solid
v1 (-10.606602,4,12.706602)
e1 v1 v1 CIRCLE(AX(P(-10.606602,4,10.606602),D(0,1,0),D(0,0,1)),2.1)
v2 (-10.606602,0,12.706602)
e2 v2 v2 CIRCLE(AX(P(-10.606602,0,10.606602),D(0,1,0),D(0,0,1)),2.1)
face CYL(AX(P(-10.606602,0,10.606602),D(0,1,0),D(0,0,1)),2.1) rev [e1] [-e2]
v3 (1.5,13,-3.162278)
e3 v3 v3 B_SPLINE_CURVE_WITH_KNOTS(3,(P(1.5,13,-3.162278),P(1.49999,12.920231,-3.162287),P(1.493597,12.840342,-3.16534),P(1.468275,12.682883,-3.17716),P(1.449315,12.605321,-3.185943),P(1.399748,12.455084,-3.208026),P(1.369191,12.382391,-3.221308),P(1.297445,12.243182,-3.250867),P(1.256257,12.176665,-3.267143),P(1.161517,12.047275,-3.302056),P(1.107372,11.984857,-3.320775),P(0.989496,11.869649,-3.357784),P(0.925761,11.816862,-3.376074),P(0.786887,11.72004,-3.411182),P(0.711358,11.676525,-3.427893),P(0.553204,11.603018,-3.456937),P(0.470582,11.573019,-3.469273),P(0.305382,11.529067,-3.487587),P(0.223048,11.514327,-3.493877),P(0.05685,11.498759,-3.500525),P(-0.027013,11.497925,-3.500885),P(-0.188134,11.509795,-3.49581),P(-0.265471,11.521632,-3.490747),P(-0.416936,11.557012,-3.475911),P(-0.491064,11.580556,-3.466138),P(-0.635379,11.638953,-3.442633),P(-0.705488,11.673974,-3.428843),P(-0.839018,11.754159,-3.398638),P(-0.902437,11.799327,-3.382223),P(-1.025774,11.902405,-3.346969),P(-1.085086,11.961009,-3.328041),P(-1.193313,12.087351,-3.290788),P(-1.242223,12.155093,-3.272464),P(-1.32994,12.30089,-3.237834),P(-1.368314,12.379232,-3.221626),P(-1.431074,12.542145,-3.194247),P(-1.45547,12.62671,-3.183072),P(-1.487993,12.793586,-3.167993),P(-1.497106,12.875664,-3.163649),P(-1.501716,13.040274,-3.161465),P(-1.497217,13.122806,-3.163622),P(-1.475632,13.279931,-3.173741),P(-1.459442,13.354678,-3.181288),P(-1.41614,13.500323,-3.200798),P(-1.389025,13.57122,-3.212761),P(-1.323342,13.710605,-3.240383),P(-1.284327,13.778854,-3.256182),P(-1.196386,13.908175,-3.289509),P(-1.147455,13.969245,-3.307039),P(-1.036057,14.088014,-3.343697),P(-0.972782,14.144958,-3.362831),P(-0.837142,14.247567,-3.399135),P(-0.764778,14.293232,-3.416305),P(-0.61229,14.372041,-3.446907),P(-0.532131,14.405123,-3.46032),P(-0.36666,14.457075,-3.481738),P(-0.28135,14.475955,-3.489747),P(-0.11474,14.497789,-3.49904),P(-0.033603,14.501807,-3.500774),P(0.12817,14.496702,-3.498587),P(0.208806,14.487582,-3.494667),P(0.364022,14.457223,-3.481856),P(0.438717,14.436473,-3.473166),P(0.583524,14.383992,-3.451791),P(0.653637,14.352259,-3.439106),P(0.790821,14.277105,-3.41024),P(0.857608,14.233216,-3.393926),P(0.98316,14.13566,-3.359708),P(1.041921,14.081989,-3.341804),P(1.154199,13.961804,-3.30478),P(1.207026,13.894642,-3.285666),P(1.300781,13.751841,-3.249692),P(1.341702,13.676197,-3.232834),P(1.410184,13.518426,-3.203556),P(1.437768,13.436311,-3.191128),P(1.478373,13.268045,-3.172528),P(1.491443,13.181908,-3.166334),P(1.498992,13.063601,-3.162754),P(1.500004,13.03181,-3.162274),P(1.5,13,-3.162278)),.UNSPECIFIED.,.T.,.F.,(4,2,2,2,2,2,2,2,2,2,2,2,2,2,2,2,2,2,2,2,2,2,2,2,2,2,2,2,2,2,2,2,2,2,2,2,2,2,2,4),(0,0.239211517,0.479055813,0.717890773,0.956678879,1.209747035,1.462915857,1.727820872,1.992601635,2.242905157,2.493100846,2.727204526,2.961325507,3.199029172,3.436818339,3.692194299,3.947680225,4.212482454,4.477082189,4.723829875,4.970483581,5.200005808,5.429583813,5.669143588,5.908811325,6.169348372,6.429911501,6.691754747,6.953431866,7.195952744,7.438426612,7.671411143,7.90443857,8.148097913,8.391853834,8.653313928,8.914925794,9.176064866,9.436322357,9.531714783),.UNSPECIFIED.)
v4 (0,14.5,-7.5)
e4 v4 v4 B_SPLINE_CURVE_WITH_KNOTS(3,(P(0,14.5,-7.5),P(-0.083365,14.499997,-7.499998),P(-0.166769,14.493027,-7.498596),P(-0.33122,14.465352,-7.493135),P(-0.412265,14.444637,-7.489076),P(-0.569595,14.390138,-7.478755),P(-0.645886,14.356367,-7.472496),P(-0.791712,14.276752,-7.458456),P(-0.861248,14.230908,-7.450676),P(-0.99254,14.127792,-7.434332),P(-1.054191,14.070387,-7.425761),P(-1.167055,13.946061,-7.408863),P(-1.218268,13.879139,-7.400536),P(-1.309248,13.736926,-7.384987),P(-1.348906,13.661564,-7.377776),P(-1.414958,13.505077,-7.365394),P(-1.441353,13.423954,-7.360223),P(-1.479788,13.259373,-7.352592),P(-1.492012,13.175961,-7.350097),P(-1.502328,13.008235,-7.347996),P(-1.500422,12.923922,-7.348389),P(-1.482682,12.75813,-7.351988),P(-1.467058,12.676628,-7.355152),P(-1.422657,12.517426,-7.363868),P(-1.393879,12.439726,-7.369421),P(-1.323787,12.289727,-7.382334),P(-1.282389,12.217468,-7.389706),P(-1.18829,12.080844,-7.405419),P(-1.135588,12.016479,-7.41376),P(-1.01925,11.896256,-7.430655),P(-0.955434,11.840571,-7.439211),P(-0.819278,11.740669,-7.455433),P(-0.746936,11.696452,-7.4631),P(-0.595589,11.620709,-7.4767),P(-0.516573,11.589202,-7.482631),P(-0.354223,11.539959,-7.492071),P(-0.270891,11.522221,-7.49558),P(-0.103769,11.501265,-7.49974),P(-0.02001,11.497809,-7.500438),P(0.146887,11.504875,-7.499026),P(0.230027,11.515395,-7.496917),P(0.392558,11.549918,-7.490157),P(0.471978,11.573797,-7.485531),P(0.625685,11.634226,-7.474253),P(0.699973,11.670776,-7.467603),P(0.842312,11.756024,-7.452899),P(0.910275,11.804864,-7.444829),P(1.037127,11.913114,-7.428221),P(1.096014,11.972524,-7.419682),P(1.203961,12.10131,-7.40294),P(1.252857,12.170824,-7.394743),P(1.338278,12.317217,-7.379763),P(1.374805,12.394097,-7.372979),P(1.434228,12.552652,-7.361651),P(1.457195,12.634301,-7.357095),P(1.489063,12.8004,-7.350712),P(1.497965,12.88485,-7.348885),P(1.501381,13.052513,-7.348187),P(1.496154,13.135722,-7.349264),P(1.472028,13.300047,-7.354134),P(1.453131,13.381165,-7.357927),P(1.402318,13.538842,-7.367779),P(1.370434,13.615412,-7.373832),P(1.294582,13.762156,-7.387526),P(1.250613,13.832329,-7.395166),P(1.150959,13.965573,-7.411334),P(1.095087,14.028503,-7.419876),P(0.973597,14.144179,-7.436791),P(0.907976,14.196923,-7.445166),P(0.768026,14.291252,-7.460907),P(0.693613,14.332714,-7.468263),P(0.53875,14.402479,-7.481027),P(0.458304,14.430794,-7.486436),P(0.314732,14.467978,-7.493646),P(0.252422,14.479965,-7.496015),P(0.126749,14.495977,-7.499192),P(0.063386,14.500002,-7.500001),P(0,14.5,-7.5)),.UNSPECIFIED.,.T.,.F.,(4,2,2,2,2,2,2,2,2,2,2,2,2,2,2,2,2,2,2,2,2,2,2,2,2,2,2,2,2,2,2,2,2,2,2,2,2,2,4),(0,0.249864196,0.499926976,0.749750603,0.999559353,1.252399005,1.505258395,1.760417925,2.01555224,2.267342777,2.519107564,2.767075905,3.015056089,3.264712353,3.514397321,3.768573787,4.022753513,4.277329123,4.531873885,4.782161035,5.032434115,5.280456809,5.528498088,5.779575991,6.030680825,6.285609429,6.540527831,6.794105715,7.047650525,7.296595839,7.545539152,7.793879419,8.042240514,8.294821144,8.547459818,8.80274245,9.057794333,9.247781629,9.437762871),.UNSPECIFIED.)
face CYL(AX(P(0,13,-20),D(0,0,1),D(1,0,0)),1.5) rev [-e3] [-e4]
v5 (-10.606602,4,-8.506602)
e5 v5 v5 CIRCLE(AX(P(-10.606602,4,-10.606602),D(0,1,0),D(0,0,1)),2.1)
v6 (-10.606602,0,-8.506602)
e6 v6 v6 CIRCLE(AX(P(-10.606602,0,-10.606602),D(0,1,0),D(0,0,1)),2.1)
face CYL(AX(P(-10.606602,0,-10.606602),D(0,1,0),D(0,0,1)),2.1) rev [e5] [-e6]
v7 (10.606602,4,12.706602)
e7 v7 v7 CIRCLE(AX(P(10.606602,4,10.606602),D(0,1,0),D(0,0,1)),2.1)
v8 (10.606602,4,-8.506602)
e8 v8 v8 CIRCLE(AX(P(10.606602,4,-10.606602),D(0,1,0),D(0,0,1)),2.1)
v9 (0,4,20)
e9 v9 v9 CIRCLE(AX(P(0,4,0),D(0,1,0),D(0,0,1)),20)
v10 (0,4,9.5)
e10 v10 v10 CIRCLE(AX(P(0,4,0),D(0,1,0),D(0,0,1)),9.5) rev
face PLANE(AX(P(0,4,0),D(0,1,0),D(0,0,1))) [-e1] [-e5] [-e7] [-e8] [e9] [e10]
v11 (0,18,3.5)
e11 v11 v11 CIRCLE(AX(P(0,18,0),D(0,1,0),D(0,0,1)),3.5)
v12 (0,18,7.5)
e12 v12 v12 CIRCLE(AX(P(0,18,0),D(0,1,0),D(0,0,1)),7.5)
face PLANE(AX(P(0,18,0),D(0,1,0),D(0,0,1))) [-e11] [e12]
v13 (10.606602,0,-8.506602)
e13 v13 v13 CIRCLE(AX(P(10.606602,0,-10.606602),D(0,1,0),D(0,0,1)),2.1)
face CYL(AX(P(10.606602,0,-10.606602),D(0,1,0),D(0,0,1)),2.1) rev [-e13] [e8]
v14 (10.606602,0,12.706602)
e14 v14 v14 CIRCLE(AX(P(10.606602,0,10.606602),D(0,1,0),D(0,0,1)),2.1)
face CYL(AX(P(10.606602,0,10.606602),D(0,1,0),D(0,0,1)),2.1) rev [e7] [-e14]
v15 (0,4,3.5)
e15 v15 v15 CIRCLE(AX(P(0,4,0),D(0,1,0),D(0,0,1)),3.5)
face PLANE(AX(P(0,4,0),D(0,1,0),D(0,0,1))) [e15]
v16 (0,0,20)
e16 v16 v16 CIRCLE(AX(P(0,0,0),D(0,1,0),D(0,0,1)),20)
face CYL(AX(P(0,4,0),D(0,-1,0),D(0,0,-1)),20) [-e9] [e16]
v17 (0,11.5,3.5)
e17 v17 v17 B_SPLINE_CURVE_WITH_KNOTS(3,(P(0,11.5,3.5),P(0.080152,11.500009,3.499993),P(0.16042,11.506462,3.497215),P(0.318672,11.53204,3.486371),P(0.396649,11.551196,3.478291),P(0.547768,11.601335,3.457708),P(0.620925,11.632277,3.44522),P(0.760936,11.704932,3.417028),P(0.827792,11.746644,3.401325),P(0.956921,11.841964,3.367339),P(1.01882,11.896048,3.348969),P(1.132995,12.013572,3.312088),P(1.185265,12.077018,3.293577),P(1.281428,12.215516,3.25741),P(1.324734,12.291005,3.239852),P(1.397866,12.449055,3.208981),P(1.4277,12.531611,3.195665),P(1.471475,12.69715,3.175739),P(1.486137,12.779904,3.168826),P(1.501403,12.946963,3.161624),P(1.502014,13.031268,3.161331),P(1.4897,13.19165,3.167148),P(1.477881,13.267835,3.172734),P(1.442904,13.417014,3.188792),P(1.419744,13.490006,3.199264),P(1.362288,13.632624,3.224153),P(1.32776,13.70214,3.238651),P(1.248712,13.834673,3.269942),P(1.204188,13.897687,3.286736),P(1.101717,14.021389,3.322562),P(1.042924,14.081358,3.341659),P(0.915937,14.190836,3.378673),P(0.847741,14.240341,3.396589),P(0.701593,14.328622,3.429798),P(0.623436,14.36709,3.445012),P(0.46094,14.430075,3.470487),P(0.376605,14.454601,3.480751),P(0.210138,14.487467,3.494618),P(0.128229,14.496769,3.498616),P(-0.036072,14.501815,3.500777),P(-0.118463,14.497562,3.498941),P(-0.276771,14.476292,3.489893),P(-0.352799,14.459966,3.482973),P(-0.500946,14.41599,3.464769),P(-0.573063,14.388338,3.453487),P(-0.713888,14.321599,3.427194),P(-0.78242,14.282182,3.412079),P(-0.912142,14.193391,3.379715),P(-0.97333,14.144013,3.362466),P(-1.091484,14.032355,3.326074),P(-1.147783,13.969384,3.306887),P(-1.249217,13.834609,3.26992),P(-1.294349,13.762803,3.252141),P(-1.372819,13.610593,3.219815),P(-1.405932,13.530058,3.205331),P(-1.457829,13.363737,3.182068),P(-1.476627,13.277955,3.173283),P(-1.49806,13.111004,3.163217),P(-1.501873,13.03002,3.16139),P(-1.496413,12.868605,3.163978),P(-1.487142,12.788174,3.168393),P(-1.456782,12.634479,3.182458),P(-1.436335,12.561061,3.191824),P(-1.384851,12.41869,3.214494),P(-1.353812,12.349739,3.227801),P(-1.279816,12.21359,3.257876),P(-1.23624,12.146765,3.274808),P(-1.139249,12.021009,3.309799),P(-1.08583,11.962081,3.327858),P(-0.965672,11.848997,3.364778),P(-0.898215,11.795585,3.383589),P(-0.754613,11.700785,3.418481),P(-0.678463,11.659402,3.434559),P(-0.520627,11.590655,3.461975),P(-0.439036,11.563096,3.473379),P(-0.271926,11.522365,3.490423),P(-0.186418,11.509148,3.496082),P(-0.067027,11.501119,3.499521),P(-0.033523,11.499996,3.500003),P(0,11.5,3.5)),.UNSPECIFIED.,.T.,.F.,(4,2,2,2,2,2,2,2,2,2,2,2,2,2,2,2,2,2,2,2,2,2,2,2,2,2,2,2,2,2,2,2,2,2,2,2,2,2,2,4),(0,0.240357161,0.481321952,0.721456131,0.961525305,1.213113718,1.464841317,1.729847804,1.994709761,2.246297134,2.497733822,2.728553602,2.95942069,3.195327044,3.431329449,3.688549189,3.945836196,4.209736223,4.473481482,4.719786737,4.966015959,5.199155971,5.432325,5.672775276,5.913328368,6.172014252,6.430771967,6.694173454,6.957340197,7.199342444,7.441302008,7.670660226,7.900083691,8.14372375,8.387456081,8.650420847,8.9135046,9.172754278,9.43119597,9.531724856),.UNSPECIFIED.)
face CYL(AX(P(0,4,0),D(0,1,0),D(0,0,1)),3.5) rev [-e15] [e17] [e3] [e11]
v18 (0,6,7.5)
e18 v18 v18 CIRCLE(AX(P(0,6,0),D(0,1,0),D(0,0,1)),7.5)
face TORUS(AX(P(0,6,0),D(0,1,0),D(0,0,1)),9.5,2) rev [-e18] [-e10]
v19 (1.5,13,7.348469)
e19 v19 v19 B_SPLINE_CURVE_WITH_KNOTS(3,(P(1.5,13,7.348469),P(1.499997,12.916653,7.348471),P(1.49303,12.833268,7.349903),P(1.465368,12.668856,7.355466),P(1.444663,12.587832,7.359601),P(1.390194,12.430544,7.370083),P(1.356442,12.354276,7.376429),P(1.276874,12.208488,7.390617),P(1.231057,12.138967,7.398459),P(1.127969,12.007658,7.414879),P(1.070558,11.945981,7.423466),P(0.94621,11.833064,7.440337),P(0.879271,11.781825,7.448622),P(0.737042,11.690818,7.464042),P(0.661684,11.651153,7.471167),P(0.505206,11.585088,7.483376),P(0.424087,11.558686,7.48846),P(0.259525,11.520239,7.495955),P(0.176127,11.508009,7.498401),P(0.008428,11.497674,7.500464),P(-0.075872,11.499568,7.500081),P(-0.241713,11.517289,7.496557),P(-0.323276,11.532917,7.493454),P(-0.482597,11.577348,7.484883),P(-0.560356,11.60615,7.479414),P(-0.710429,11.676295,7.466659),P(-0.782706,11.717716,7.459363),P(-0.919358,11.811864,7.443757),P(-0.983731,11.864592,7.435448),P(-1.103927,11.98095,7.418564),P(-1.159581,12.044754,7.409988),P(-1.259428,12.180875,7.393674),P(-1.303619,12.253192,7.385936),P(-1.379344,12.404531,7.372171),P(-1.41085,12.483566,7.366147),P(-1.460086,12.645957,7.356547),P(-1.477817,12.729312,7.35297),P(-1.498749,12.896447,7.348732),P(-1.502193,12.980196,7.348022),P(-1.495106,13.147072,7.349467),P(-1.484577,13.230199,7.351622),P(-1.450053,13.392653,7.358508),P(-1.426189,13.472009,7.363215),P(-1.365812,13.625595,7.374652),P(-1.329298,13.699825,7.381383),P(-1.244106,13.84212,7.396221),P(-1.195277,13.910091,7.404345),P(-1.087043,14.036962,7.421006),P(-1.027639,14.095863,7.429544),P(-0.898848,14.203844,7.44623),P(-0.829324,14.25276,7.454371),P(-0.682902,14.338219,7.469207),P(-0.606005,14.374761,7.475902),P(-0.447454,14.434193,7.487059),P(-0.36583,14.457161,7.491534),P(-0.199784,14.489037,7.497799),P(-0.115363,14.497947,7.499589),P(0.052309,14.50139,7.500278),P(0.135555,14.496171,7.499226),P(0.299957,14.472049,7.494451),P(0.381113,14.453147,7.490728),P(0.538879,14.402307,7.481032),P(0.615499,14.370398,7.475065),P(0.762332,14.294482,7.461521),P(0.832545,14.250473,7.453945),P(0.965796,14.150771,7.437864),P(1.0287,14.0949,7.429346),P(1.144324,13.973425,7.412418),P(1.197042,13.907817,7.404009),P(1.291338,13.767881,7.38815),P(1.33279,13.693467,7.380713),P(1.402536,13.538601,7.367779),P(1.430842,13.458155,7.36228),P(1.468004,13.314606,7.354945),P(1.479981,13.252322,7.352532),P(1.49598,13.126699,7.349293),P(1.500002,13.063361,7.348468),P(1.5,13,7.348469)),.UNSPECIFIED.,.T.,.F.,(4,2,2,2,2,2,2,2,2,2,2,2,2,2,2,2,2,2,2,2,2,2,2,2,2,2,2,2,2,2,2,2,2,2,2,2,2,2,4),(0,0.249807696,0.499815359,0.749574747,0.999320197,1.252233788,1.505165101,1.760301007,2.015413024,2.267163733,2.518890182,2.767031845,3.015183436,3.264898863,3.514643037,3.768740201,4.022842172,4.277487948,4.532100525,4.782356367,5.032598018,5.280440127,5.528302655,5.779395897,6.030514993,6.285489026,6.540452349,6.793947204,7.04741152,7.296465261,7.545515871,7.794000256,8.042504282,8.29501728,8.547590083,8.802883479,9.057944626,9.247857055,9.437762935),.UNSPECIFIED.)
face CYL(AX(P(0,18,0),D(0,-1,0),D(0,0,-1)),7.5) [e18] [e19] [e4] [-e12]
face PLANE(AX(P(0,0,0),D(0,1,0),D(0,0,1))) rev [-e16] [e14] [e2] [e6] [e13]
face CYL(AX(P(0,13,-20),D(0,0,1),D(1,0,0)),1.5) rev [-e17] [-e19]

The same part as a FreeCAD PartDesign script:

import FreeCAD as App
import Part
import Sketcher
from FreeCAD import Vector


def edges_at(feature, points):
    """Names of the edges that pass closest to the given points."""
    edges = feature.Shape.Edges
    near = lambda p: min(range(len(edges)), key=lambda i: edges[i].distToShape(Part.Vertex(*p))[0])
    return sorted({f"Edge{near(p) + 1}" for p in points})

doc = App.newDocument("Part")
params = doc.addObject("Spreadsheet::Sheet", "Params")
for row, (alias, value) in enumerate([
    ("sketch1_diameter", "40 mm"),
    ("pad1_length", "4 mm"),
    ("sketch2_diameter", "15 mm"),
    ("pad2_length", "14 mm"),
    ("sketch3_diameter", "7 mm"),
    ("pocket1_length", "14 mm"),
    ("sketch4_diameter", "3 mm"),
    ("fillet_radius", "2 mm"),
    ("sketch5_diameter", "4.2 mm"),
], start=1):
    params.set(f"A{row}", alias)
    params.set(f"B{row}", "=" + value)
    params.setAlias(f"B{row}", alias)

body = doc.addObject("PartDesign::Body", "Body")

# Sketch on XZ plane
sketch1 = body.newObject("Sketcher::SketchObject", "Sketch")
sketch1.AttachmentSupport = (doc.getObject("XZ_Plane"), [""])
sketch1.MapMode = "FlatFace"
sketch1.addGeometry(Part.Circle(Vector(0, 0, 0), Vector(0, 0, 1), 20), False)
sketch1.addConstraint([
    Sketcher.Constraint("Coincident", 0, 3, -1, 1),
    Sketcher.Constraint("Diameter", 0, 40.0),
])
sketch1.setExpression("Constraints[1]", "Params.sketch1_diameter")
pad1 = body.newObject("PartDesign::Pad", "Pad")
pad1.Profile = sketch1
pad1.setExpression("Length", "Params.pad1_length")
pad1.Reversed = True

# Sketch on XZ plane
sketch2 = body.newObject("Sketcher::SketchObject", "Sketch001")
sketch2.AttachmentSupport = (doc.getObject("XZ_Plane"), [""])
sketch2.MapMode = "FlatFace"
sketch2.AttachmentOffset = App.Placement(Vector(0, 0, -4), App.Rotation())
sketch2.addGeometry(Part.Circle(Vector(0, 0, 0), Vector(0, 0, 1), 7.5), False)
sketch2.addConstraint([
    Sketcher.Constraint("Coincident", 0, 3, -1, 1),
    Sketcher.Constraint("Diameter", 0, 15.0),
])
sketch2.setExpression("Constraints[1]", "Params.sketch2_diameter")
pad2 = body.newObject("PartDesign::Pad", "Pad001")
pad2.Profile = sketch2
pad2.setExpression("Length", "Params.pad2_length")
pad2.Reversed = True

# Sketch on XZ plane
sketch3 = body.newObject("Sketcher::SketchObject", "Sketch002")
sketch3.AttachmentSupport = (doc.getObject("XZ_Plane"), [""])
sketch3.MapMode = "FlatFace"
sketch3.AttachmentOffset = App.Placement(Vector(0, 0, -18), App.Rotation())
sketch3.addGeometry(Part.Circle(Vector(0, 0, 0), Vector(0, 0, 1), 3.5), False)
sketch3.addConstraint([
    Sketcher.Constraint("Coincident", 0, 3, -1, 1),
    Sketcher.Constraint("Diameter", 0, 7.0),
])
sketch3.setExpression("Constraints[1]", "Params.sketch3_diameter")
pocket1 = body.newObject("PartDesign::Pocket", "Pocket")
pocket1.Profile = sketch3
pocket1.setExpression("Length", "Params.pocket1_length")
pocket1.Reversed = True

# Sketch on XY plane
sketch4 = body.newObject("Sketcher::SketchObject", "Sketch003")
sketch4.AttachmentSupport = (doc.getObject("XY_Plane"), [""])
sketch4.MapMode = "FlatFace"
sketch4.addGeometry(Part.Circle(Vector(0, 13, 0), Vector(0, 0, 1), 1.5), False)
sketch4.addConstraint([
    Sketcher.Constraint("PointOnObject", 0, 3, -2),
    Sketcher.Constraint("Diameter", 0, 3.0),
    Sketcher.Constraint("DistanceY", -1, 1, 0, 3, 13.0),
])
sketch4.setExpression("Constraints[1]", "Params.sketch4_diameter")
pocket2 = body.newObject("PartDesign::Pocket", "Pocket001")
pocket2.Profile = sketch4
pocket2.Type = "ThroughAll"
pocket2.Midplane = True
doc.recompute()

fillet = body.newObject("PartDesign::Fillet", "Fillet")
fillet.Base = (pocket2, edges_at(pocket2, [(-7.5, 4, 0)]))
fillet.setExpression("Radius", "Params.fillet_radius")

# Sketch on XZ plane
sketch5 = body.newObject("Sketcher::SketchObject", "Sketch004")
sketch5.AttachmentSupport = (doc.getObject("XZ_Plane"), [""])
sketch5.MapMode = "FlatFace"
sketch5.AttachmentOffset = App.Placement(Vector(0, 0, -4), App.Rotation())
sketch5.addGeometry([
    Part.Circle(Vector(10.606602, -10.606602, 0), Vector(0, 0, 1), 2.1),
    Part.Circle(Vector(-10.606602, -10.606602, 0), Vector(0, 0, 1), 2.1),
    Part.Circle(Vector(-10.606602, 10.606602, 0), Vector(0, 0, 1), 2.1),
    Part.Circle(Vector(10.606602, 10.606602, 0), Vector(0, 0, 1), 2.1),
], False)
sketch5.addConstraint([
    Sketcher.Constraint("Equal", 0, 1),
    Sketcher.Constraint("Equal", 1, 2),
    Sketcher.Constraint("Equal", 2, 3),
    Sketcher.Constraint("Symmetric", 0, 3, 2, 3, -1, 1),
    Sketcher.Constraint("Symmetric", 1, 3, 3, 3, -1, 1),
    Sketcher.Constraint("Symmetric", 0, 3, 1, 3, -2),
    Sketcher.Constraint("Diameter", 0, 4.2),
    Sketcher.Constraint("DistanceX", -1, 1, 0, 3, 10.606602),
    Sketcher.Constraint("DistanceY", 0, 3, -1, 1, 10.606602),
])
sketch5.setExpression("Constraints[6]", "Params.sketch5_diameter")
pocket3 = body.newObject("PartDesign::Pocket", "Pocket002")
pocket3.Profile = sketch5
pocket3.Type = "ThroughAll"
pocket3.Reversed = True

doc.recompute()
